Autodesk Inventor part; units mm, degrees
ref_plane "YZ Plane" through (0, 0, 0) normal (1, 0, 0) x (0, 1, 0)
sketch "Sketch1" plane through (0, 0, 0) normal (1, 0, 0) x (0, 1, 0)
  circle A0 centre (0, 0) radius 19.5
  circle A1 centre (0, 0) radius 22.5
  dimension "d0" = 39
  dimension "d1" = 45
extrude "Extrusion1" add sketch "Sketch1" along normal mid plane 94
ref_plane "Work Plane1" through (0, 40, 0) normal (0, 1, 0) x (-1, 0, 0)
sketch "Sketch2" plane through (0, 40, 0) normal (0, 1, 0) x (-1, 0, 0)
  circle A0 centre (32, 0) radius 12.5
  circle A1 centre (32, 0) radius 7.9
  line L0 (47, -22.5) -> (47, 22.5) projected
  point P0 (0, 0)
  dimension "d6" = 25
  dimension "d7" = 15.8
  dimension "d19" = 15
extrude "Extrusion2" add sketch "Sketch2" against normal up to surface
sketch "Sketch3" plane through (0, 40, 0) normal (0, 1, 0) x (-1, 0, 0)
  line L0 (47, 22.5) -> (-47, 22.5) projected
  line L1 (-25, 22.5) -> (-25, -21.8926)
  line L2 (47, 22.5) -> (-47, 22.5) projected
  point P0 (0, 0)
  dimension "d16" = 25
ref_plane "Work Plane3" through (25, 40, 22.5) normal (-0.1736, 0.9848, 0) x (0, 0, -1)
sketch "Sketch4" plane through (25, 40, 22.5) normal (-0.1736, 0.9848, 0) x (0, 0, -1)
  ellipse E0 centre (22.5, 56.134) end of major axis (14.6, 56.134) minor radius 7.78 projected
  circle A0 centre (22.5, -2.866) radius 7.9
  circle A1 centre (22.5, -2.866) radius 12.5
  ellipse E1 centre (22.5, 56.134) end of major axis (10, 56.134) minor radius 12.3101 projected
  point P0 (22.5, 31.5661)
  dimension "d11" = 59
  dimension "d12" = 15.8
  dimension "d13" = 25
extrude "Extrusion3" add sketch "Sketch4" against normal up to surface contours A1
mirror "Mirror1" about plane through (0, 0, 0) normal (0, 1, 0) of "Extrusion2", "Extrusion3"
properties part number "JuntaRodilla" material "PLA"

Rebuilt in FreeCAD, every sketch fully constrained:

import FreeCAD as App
import Part
import Sketcher

V = App.Vector
Q = App.Units.Quantity

doc = App.newDocument("Part")
body = doc.addObject("PartDesign::Body", "Body")

sketch1 = body.newObject("Sketcher::SketchObject", "Sketch")
sketch1.AttachmentSupport = (doc.getObject("YZ_Plane"), [""])
sketch1.MapMode = "FlatFace"
sketch1.addGeometry([
    Part.Circle(V(0, 0, 0), V(0, 0, 1), 22),
    Part.Circle(V(0, 0, 0), V(0, 0, 1), 20),
], False)
sketch1.addConstraint([
    Sketcher.Constraint("Coincident", 0, 3, -1, 1),
    Sketcher.Constraint("Coincident", 1, 3, -1, 1),
    Sketcher.Constraint("Diameter", 0, Q("45 mm")),
    Sketcher.Constraint("Diameter", 1, Q("39 mm")),
])
pad1 = body.newObject("PartDesign::Pad", "Pad")
pad1.Profile = sketch1
pad1.Length = 94
pad1.Midplane = True

sketch2 = body.newObject("Sketcher::SketchObject", "Sketch001")
sketch2.AttachmentSupport = (doc.getObject("XZ_Plane"), [""])
sketch2.MapMode = "FlatFace"
sketch2.AttachmentOffset = App.Placement(V(0, 0, -40), App.Rotation())
sketch2.addGeometry([
    Part.Circle(V(-32, 0, 0), V(0, 0, 1), 12),
    Part.Circle(V(-32, 0, 0), V(0, 0, 1), 8),
], False)
sketch2.addConstraint([
    Sketcher.Constraint("Coincident", 1, 3, 0, 3),
    Sketcher.Constraint("PointOnObject", 0, 3, -1),
    Sketcher.Constraint("Diameter", 0, Q("25 mm")),
    Sketcher.Constraint("Diameter", 1, Q("15.8 mm")),
    Sketcher.Constraint("DistanceX", 0, 3, -1, 1, Q("32 mm")),
])
pad2 = body.newObject("PartDesign::Pad", "Pad001")
pad2.Profile = sketch2
pad2.Type = "UpToFirst"

sketch3 = body.newObject("Sketcher::SketchObject", "Sketch002")
sketch3.Placement = App.Placement(V(25, 40, 22.5), App.Rotation(V(0, 0, -1), V(-0.984807753, -0.173648178, 0), V(-0.173648178, 0.984807753, 0), "ZXY"))
sketch3.addGeometry([
    Part.Circle(V(22, -3, 0), V(0, 0, 1), 12),
    Part.Circle(V(22, -3, 0), V(0, 0, 1), 8),
], False)
sketch3.addConstraint([
    Sketcher.Constraint("Coincident", 1, 3, 0, 3),
    Sketcher.Constraint("Diameter", 0, Q("25 mm")),
    Sketcher.Constraint("Diameter", 1, Q("15.8 mm")),
    Sketcher.Constraint("DistanceX", -1, 1, 0, 3, Q("22.5 mm")),
    Sketcher.Constraint("DistanceY", 0, 3, -1, 1, Q("2.866 mm")),
])
pad3 = body.newObject("PartDesign::Pad", "Pad002")
pad3.Profile = sketch3
pad3.Type = "UpToFirst"
pad3.Reversed = True
doc.recompute()

mirrored = body.newObject("PartDesign::Mirrored", "Mirrored")
mirrored.Originals = [pad2, pad3]
mirrored.MirrorPlane = (doc.getObject("XZ_Plane"), [""])
body.Tip = mirrored

doc.recompute()
